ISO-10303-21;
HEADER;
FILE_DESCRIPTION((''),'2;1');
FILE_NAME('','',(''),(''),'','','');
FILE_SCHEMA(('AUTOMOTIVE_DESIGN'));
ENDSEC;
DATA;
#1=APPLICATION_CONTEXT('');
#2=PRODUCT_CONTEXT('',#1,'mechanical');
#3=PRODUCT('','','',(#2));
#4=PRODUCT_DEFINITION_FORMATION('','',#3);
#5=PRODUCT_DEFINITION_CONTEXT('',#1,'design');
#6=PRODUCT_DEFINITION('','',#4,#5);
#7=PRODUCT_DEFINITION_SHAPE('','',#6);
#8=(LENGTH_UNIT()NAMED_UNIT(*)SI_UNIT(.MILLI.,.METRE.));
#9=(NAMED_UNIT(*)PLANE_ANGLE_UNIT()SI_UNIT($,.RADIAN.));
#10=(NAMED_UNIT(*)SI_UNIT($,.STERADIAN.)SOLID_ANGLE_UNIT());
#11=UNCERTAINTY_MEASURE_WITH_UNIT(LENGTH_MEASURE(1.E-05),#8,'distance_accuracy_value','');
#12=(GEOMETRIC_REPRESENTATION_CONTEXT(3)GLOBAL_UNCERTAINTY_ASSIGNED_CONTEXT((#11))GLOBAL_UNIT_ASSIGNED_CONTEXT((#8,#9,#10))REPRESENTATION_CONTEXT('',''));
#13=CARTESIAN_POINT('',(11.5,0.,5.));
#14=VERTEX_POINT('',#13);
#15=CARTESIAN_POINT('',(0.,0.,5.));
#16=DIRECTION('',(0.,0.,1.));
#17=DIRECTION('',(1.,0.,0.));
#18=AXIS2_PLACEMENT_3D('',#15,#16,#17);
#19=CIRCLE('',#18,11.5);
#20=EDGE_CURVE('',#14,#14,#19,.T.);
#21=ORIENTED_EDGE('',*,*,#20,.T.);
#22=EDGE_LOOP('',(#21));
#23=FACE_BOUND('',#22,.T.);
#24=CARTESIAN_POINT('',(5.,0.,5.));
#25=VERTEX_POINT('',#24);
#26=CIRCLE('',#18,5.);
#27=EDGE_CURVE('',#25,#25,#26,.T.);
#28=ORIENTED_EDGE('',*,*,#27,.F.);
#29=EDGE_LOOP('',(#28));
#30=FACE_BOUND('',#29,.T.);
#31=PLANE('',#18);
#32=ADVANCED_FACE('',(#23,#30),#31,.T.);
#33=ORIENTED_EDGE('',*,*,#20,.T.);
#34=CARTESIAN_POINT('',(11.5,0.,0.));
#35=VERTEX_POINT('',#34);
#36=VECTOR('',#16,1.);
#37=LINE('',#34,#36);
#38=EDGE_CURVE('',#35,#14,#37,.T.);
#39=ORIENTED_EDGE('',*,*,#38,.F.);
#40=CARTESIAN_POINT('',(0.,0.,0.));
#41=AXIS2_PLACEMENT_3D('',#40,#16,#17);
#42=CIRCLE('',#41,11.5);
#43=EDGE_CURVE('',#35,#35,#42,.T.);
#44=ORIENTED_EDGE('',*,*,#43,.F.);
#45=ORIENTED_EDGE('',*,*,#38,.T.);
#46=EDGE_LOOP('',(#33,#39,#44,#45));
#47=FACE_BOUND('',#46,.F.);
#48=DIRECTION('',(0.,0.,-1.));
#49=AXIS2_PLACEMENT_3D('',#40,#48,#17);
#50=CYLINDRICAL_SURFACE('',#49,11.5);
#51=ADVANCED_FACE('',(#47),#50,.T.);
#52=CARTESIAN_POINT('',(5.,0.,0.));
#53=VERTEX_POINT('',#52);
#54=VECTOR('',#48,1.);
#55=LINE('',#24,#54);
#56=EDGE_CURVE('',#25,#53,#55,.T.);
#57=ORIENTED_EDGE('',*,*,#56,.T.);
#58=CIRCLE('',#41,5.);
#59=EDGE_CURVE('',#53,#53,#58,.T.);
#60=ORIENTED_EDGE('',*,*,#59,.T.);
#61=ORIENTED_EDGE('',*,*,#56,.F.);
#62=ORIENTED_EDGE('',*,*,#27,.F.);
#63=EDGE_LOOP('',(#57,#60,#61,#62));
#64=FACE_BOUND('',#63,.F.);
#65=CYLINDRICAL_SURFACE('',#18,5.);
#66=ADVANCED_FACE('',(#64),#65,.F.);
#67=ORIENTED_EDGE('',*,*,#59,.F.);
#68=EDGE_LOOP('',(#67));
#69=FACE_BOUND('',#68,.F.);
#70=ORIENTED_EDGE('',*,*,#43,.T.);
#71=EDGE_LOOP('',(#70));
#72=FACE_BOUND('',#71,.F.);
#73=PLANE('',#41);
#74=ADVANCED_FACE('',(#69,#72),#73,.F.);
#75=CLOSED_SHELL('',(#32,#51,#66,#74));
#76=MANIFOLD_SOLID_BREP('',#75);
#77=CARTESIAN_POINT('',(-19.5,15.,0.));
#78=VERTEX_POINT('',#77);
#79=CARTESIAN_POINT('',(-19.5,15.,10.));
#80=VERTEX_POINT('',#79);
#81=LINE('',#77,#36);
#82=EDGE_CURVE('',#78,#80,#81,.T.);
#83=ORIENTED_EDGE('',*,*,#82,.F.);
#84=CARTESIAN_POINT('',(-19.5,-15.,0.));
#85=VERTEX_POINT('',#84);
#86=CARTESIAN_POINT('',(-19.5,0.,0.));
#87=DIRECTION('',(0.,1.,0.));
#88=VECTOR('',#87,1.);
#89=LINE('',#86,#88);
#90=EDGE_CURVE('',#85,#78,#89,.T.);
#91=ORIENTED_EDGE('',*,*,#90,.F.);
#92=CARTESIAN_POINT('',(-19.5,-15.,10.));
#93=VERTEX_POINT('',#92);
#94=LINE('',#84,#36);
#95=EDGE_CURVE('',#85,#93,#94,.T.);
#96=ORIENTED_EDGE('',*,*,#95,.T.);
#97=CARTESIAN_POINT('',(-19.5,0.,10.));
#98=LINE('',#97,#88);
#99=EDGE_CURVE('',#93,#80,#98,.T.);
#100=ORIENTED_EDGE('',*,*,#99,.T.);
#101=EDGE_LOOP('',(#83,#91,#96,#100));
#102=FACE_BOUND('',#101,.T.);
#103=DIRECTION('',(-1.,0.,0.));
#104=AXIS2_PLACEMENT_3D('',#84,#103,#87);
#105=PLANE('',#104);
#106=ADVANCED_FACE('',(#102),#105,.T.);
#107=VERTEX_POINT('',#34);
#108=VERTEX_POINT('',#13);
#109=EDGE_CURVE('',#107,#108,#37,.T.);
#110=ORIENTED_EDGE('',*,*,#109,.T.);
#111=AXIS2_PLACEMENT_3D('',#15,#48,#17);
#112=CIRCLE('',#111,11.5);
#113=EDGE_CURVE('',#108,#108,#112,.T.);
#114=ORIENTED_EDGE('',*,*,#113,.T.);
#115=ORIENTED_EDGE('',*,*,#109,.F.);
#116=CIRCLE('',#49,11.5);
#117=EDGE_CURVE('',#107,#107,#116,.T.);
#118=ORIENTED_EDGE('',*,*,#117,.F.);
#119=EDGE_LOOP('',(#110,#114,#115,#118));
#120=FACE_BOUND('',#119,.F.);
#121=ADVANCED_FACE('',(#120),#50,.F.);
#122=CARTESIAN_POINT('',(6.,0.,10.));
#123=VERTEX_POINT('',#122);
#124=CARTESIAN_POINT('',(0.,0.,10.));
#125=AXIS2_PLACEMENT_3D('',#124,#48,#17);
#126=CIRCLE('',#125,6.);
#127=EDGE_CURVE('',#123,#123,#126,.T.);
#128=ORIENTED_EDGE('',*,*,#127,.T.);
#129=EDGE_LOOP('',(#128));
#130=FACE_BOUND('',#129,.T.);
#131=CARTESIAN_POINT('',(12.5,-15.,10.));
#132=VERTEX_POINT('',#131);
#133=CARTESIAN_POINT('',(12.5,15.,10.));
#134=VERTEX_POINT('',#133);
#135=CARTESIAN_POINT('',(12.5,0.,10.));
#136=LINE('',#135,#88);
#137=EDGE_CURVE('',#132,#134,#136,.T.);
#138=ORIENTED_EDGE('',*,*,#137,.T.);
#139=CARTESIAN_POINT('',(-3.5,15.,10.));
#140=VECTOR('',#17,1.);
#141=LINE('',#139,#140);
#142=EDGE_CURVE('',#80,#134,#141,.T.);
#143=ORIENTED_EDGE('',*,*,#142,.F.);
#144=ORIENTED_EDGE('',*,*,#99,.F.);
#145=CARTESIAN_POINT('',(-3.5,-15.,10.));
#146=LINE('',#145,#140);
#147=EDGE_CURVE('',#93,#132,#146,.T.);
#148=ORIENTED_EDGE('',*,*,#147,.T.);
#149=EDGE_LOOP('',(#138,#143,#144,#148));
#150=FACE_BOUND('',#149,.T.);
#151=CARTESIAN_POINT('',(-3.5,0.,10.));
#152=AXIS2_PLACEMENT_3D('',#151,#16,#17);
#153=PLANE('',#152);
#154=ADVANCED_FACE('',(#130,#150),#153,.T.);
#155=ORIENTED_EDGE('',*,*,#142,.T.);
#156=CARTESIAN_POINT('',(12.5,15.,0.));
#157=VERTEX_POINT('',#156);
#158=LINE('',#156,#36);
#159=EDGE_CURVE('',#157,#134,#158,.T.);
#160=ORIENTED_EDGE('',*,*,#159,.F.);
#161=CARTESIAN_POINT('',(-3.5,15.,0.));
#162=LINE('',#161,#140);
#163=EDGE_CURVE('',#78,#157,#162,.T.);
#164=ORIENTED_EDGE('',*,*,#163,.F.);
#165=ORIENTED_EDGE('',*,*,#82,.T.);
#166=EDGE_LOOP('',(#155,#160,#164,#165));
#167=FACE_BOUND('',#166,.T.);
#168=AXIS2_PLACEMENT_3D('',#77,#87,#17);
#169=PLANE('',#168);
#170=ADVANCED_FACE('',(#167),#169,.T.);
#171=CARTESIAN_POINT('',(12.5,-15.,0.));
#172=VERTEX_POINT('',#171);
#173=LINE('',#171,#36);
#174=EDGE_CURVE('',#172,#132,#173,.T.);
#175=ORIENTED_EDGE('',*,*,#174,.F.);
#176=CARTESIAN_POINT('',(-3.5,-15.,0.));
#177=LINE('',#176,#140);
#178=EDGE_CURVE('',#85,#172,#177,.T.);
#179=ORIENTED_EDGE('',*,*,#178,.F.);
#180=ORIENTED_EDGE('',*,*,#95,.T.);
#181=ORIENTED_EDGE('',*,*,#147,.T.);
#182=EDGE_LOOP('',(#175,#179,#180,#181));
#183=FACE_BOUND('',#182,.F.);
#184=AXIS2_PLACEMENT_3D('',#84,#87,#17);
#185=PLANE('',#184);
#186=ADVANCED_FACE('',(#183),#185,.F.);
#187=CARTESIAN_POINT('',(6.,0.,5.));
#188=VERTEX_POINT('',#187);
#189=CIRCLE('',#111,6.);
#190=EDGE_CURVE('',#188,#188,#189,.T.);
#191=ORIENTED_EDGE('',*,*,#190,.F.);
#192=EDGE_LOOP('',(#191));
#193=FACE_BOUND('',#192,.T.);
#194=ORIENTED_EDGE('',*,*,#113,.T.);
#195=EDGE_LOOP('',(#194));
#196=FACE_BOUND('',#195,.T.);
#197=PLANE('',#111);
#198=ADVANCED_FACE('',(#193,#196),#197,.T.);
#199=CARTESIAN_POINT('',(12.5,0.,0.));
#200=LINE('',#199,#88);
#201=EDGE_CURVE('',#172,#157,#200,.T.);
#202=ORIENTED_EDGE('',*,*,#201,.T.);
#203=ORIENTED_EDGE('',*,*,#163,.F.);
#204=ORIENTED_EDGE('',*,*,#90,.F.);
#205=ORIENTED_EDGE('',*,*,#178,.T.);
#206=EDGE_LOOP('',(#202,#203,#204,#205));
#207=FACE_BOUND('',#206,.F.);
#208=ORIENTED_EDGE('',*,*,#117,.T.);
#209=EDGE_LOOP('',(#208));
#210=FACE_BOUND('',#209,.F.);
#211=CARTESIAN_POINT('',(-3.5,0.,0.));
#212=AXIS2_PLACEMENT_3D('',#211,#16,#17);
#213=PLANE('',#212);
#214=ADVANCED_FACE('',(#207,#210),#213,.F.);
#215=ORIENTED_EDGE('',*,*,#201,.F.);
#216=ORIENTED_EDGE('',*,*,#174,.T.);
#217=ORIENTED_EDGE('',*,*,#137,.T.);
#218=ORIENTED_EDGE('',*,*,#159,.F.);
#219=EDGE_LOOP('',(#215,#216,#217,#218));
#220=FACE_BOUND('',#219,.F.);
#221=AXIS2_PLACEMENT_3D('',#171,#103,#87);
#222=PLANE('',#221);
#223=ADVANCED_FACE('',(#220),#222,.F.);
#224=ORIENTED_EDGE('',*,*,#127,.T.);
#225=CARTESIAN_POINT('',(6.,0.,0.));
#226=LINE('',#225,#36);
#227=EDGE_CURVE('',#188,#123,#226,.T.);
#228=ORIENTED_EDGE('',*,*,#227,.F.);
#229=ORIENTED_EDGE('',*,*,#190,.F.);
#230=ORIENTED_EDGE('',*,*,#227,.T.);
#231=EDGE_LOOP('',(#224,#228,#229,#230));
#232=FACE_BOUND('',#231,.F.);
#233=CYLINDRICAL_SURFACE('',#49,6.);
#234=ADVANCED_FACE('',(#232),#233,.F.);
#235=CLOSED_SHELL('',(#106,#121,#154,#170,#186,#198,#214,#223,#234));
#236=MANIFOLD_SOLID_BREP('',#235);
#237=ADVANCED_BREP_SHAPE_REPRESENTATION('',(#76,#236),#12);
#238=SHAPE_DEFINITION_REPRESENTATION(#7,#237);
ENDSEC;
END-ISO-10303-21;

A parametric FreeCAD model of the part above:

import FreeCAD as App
import Part
import Sketcher

V = App.Vector
Q = App.Units.Quantity

doc = App.newDocument("Part")
body = doc.addObject("PartDesign::Body", "Body")

# Sketch on XY plane
sketch1 = doc.addObject("Sketcher::SketchObject", "Sketch")
body.addObject(sketch1)
sketch1.AttachmentSupport = (doc.XY_Plane, [""])
sketch1.MapMode = "FlatFace"
sketch1.addGeometry(Part.Circle(V(0, 0, 0), V(0, 0, 1), 11.5), False)
sketch1.addConstraint([
    Sketcher.Constraint("Coincident", 0, 3, -1, 1),
    Sketcher.Constraint("Diameter", 0, Q("23 mm")),
])
pad1 = doc.addObject("PartDesign::Pad", "Pad")
body.addObject(pad1)
pad1.Profile = sketch1
pad1.Length = 5

# Sketch on XY plane
sketch2 = doc.addObject("Sketcher::SketchObject", "Sketch001")
body.addObject(sketch2)
sketch2.AttachmentSupport = (doc.XY_Plane, [""])
sketch2.MapMode = "FlatFace"
sketch2.AttachmentOffset = App.Placement(V(0, 0, 5), App.Rotation())
sketch2.addGeometry(Part.Circle(V(0, 0, 0), V(0, 0, 1), 5), False)
sketch2.addConstraint([
    Sketcher.Constraint("Coincident", 0, 3, -1, 1),
    Sketcher.Constraint("Diameter", 0, Q("10 mm")),
])
pocket1 = doc.addObject("PartDesign::Pocket", "Pocket")
body.addObject(pocket1)
pocket1.Profile = sketch2
pocket1.Type = "ThroughAll"
body2 = doc.addObject("PartDesign::Body", "Body001")

# Sketch on XY plane
sketch3 = doc.addObject("Sketcher::SketchObject", "Sketch002")
body2.addObject(sketch3)
sketch3.AttachmentSupport = (doc.getObject("XY_Plane001"), [""])
sketch3.MapMode = "FlatFace"
sketch3.addGeometry([
    Part.LineSegment(V(-19.5, 15, 0), V(-19.5, -15, 0)),
    Part.LineSegment(V(-19.5, -15, 0), V(12.5, -15, 0)),
    Part.LineSegment(V(12.5, -15, 0), V(12.5, 15, 0)),
    Part.LineSegment(V(12.5, 15, 0), V(-19.5, 15, 0)),
], False)
sketch3.addConstraint([
    Sketcher.Constraint("Coincident", 0, 2, 1, 1),
    Sketcher.Constraint("Coincident", 1, 2, 2, 1),
    Sketcher.Constraint("Coincident", 2, 2, 3, 1),
    Sketcher.Constraint("Coincident", 3, 2, 0, 1),
    Sketcher.Constraint("Vertical", 0),
    Sketcher.Constraint("Horizontal", 1),
    Sketcher.Constraint("Vertical", 2),
    Sketcher.Constraint("Horizontal", 3),
    Sketcher.Constraint("DistanceX", 1, 1, 1, 2, Q("32 mm")),
    Sketcher.Constraint("DistanceY", 0, 2, 0, 1, Q("30 mm")),
    Sketcher.Constraint("DistanceY", 0, 2, -1, 1, Q("15 mm")),
    Sketcher.Constraint("DistanceX", 0, 2, -1, 1, Q("19.5 mm")),
])
pad2 = doc.addObject("PartDesign::Pad", "Pad001")
body2.addObject(pad2)
pad2.Profile = sketch3
pad2.Length = 10

# Sketch on XY plane
sketch4 = doc.addObject("Sketcher::SketchObject", "Sketch003")
body2.addObject(sketch4)
sketch4.AttachmentSupport = (doc.getObject("XY_Plane001"), [""])
sketch4.MapMode = "FlatFace"
sketch4.addGeometry(Part.Circle(V(0, 0, 0), V(0, 0, 1), 11.5), False)
sketch4.addConstraint([
    Sketcher.Constraint("Coincident", 0, 3, -1, 1),
    Sketcher.Constraint("Diameter", 0, Q("23 mm")),
])
pocket2 = doc.addObject("PartDesign::Pocket", "Pocket001")
body2.addObject(pocket2)
pocket2.Profile = sketch4
pocket2.Length = 5
pocket2.Reversed = True

# Sketch on XY plane
sketch5 = doc.addObject("Sketcher::SketchObject", "Sketch004")
body2.addObject(sketch5)
sketch5.AttachmentSupport = (doc.getObject("XY_Plane001"), [""])
sketch5.MapMode = "FlatFace"
sketch5.addGeometry(Part.Circle(V(0, 0, 0), V(0, 0, 1), 6), False)
sketch5.addConstraint([
    Sketcher.Constraint("Coincident", 0, 3, -1, 1),
    Sketcher.Constraint("Diameter", 0, Q("12 mm")),
])
pocket3 = doc.addObject("PartDesign::Pocket", "Pocket002")
body2.addObject(pocket3)
pocket3.Profile = sketch5
pocket3.Type = "ThroughAll"
pocket3.Reversed = True

doc.recompute()
